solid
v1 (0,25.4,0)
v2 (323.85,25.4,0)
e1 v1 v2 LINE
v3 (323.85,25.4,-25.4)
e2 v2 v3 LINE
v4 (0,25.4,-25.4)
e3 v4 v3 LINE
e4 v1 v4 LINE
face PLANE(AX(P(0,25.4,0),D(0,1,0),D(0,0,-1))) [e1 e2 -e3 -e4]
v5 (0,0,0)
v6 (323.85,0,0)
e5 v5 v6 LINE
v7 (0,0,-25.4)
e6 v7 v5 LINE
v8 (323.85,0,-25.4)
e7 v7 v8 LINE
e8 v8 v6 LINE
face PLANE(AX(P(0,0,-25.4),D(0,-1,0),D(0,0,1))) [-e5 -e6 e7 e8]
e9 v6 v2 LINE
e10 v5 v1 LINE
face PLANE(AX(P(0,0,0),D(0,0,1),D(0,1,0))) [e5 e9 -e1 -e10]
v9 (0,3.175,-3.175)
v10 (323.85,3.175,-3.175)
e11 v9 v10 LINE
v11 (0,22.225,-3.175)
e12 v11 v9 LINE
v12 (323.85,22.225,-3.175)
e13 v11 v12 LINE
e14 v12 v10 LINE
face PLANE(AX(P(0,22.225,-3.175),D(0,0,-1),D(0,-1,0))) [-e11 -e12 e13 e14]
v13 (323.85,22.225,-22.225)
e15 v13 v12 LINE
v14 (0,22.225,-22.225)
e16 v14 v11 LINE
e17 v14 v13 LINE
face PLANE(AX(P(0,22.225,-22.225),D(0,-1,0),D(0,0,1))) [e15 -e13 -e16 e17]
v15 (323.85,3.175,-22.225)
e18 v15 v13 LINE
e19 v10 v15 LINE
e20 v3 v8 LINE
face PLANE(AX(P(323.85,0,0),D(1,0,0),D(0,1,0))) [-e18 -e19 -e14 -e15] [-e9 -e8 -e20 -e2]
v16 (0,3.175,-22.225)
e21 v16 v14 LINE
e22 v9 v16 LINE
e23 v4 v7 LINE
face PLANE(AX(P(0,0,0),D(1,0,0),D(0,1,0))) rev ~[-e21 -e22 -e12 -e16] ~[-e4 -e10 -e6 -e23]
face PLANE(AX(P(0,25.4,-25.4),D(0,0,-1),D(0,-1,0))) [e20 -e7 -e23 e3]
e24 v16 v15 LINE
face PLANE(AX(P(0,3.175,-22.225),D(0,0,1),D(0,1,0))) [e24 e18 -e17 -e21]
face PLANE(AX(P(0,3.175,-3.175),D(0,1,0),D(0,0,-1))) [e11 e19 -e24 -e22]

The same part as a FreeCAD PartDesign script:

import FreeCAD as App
import Part
import Sketcher
Q = App.Units.Quantity

doc = App.newDocument("Part")
body = doc.addObject("PartDesign::Body", "Body")

sketch1 = body.newObject("Sketcher::SketchObject", "Sketch")
sketch1.AttachmentSupport = (doc.getObject("YZ_Plane"), [""])
sketch1.MapMode = "FlatFace"
sketch1.addGeometry([
    Part.LineSegment(App.Vector(25, 0, 0), App.Vector(0, 0, 0)),
    Part.LineSegment(App.Vector(0, 0, 0), App.Vector(0, -25, 0)),
    Part.LineSegment(App.Vector(0, -25, 0), App.Vector(25, -25, 0)),
    Part.LineSegment(App.Vector(25, -25, 0), App.Vector(25, 0, 0)),
    Part.LineSegment(App.Vector(22, -3, 0), App.Vector(22, -22, 0)),
    Part.LineSegment(App.Vector(22, -22, 0), App.Vector(3, -22, 0)),
    Part.LineSegment(App.Vector(3, -22, 0), App.Vector(3, -3, 0)),
    Part.LineSegment(App.Vector(3, -3, 0), App.Vector(22, -3, 0)),
], False)
sketch1.addConstraint([
    Sketcher.Constraint("Coincident", 0, 2, 1, 1),
    Sketcher.Constraint("Coincident", 1, 2, 2, 1),
    Sketcher.Constraint("Coincident", 2, 2, 3, 1),
    Sketcher.Constraint("Coincident", 3, 2, 0, 1),
    Sketcher.Constraint("Coincident", 4, 2, 5, 1),
    Sketcher.Constraint("Coincident", 5, 2, 6, 1),
    Sketcher.Constraint("Coincident", 6, 2, 7, 1),
    Sketcher.Constraint("Coincident", 7, 2, 4, 1),
    Sketcher.Constraint("Horizontal", 0),
    Sketcher.Constraint("Vertical", 1),
    Sketcher.Constraint("Horizontal", 2),
    Sketcher.Constraint("Vertical", 3),
    Sketcher.Constraint("Vertical", 4),
    Sketcher.Constraint("Horizontal", 5),
    Sketcher.Constraint("Vertical", 6),
    Sketcher.Constraint("Horizontal", 7),
    Sketcher.Constraint("Coincident", 0, 2, -1, 1),
    Sketcher.Constraint("Equal", 2, 1),
    Sketcher.Constraint("Equal", 7, 4),
    Sketcher.Constraint("DistanceX", 0, 2, 0, 1, Q("1 in")),
    Sketcher.Constraint("DistanceX", -1, 1, 5, 2, Q("0.125 in")),
    Sketcher.Constraint("DistanceY", 6, 2, -1, 1, Q("0.125 in")),
    Sketcher.Constraint("DistanceX", 4, 2, 2, 2, Q("0.125 in")),
])
pad1 = body.newObject("PartDesign::Pad", "Pad")
pad1.Profile = sketch1
pad1.Length = Q("12.75 in")

doc.recompute()
